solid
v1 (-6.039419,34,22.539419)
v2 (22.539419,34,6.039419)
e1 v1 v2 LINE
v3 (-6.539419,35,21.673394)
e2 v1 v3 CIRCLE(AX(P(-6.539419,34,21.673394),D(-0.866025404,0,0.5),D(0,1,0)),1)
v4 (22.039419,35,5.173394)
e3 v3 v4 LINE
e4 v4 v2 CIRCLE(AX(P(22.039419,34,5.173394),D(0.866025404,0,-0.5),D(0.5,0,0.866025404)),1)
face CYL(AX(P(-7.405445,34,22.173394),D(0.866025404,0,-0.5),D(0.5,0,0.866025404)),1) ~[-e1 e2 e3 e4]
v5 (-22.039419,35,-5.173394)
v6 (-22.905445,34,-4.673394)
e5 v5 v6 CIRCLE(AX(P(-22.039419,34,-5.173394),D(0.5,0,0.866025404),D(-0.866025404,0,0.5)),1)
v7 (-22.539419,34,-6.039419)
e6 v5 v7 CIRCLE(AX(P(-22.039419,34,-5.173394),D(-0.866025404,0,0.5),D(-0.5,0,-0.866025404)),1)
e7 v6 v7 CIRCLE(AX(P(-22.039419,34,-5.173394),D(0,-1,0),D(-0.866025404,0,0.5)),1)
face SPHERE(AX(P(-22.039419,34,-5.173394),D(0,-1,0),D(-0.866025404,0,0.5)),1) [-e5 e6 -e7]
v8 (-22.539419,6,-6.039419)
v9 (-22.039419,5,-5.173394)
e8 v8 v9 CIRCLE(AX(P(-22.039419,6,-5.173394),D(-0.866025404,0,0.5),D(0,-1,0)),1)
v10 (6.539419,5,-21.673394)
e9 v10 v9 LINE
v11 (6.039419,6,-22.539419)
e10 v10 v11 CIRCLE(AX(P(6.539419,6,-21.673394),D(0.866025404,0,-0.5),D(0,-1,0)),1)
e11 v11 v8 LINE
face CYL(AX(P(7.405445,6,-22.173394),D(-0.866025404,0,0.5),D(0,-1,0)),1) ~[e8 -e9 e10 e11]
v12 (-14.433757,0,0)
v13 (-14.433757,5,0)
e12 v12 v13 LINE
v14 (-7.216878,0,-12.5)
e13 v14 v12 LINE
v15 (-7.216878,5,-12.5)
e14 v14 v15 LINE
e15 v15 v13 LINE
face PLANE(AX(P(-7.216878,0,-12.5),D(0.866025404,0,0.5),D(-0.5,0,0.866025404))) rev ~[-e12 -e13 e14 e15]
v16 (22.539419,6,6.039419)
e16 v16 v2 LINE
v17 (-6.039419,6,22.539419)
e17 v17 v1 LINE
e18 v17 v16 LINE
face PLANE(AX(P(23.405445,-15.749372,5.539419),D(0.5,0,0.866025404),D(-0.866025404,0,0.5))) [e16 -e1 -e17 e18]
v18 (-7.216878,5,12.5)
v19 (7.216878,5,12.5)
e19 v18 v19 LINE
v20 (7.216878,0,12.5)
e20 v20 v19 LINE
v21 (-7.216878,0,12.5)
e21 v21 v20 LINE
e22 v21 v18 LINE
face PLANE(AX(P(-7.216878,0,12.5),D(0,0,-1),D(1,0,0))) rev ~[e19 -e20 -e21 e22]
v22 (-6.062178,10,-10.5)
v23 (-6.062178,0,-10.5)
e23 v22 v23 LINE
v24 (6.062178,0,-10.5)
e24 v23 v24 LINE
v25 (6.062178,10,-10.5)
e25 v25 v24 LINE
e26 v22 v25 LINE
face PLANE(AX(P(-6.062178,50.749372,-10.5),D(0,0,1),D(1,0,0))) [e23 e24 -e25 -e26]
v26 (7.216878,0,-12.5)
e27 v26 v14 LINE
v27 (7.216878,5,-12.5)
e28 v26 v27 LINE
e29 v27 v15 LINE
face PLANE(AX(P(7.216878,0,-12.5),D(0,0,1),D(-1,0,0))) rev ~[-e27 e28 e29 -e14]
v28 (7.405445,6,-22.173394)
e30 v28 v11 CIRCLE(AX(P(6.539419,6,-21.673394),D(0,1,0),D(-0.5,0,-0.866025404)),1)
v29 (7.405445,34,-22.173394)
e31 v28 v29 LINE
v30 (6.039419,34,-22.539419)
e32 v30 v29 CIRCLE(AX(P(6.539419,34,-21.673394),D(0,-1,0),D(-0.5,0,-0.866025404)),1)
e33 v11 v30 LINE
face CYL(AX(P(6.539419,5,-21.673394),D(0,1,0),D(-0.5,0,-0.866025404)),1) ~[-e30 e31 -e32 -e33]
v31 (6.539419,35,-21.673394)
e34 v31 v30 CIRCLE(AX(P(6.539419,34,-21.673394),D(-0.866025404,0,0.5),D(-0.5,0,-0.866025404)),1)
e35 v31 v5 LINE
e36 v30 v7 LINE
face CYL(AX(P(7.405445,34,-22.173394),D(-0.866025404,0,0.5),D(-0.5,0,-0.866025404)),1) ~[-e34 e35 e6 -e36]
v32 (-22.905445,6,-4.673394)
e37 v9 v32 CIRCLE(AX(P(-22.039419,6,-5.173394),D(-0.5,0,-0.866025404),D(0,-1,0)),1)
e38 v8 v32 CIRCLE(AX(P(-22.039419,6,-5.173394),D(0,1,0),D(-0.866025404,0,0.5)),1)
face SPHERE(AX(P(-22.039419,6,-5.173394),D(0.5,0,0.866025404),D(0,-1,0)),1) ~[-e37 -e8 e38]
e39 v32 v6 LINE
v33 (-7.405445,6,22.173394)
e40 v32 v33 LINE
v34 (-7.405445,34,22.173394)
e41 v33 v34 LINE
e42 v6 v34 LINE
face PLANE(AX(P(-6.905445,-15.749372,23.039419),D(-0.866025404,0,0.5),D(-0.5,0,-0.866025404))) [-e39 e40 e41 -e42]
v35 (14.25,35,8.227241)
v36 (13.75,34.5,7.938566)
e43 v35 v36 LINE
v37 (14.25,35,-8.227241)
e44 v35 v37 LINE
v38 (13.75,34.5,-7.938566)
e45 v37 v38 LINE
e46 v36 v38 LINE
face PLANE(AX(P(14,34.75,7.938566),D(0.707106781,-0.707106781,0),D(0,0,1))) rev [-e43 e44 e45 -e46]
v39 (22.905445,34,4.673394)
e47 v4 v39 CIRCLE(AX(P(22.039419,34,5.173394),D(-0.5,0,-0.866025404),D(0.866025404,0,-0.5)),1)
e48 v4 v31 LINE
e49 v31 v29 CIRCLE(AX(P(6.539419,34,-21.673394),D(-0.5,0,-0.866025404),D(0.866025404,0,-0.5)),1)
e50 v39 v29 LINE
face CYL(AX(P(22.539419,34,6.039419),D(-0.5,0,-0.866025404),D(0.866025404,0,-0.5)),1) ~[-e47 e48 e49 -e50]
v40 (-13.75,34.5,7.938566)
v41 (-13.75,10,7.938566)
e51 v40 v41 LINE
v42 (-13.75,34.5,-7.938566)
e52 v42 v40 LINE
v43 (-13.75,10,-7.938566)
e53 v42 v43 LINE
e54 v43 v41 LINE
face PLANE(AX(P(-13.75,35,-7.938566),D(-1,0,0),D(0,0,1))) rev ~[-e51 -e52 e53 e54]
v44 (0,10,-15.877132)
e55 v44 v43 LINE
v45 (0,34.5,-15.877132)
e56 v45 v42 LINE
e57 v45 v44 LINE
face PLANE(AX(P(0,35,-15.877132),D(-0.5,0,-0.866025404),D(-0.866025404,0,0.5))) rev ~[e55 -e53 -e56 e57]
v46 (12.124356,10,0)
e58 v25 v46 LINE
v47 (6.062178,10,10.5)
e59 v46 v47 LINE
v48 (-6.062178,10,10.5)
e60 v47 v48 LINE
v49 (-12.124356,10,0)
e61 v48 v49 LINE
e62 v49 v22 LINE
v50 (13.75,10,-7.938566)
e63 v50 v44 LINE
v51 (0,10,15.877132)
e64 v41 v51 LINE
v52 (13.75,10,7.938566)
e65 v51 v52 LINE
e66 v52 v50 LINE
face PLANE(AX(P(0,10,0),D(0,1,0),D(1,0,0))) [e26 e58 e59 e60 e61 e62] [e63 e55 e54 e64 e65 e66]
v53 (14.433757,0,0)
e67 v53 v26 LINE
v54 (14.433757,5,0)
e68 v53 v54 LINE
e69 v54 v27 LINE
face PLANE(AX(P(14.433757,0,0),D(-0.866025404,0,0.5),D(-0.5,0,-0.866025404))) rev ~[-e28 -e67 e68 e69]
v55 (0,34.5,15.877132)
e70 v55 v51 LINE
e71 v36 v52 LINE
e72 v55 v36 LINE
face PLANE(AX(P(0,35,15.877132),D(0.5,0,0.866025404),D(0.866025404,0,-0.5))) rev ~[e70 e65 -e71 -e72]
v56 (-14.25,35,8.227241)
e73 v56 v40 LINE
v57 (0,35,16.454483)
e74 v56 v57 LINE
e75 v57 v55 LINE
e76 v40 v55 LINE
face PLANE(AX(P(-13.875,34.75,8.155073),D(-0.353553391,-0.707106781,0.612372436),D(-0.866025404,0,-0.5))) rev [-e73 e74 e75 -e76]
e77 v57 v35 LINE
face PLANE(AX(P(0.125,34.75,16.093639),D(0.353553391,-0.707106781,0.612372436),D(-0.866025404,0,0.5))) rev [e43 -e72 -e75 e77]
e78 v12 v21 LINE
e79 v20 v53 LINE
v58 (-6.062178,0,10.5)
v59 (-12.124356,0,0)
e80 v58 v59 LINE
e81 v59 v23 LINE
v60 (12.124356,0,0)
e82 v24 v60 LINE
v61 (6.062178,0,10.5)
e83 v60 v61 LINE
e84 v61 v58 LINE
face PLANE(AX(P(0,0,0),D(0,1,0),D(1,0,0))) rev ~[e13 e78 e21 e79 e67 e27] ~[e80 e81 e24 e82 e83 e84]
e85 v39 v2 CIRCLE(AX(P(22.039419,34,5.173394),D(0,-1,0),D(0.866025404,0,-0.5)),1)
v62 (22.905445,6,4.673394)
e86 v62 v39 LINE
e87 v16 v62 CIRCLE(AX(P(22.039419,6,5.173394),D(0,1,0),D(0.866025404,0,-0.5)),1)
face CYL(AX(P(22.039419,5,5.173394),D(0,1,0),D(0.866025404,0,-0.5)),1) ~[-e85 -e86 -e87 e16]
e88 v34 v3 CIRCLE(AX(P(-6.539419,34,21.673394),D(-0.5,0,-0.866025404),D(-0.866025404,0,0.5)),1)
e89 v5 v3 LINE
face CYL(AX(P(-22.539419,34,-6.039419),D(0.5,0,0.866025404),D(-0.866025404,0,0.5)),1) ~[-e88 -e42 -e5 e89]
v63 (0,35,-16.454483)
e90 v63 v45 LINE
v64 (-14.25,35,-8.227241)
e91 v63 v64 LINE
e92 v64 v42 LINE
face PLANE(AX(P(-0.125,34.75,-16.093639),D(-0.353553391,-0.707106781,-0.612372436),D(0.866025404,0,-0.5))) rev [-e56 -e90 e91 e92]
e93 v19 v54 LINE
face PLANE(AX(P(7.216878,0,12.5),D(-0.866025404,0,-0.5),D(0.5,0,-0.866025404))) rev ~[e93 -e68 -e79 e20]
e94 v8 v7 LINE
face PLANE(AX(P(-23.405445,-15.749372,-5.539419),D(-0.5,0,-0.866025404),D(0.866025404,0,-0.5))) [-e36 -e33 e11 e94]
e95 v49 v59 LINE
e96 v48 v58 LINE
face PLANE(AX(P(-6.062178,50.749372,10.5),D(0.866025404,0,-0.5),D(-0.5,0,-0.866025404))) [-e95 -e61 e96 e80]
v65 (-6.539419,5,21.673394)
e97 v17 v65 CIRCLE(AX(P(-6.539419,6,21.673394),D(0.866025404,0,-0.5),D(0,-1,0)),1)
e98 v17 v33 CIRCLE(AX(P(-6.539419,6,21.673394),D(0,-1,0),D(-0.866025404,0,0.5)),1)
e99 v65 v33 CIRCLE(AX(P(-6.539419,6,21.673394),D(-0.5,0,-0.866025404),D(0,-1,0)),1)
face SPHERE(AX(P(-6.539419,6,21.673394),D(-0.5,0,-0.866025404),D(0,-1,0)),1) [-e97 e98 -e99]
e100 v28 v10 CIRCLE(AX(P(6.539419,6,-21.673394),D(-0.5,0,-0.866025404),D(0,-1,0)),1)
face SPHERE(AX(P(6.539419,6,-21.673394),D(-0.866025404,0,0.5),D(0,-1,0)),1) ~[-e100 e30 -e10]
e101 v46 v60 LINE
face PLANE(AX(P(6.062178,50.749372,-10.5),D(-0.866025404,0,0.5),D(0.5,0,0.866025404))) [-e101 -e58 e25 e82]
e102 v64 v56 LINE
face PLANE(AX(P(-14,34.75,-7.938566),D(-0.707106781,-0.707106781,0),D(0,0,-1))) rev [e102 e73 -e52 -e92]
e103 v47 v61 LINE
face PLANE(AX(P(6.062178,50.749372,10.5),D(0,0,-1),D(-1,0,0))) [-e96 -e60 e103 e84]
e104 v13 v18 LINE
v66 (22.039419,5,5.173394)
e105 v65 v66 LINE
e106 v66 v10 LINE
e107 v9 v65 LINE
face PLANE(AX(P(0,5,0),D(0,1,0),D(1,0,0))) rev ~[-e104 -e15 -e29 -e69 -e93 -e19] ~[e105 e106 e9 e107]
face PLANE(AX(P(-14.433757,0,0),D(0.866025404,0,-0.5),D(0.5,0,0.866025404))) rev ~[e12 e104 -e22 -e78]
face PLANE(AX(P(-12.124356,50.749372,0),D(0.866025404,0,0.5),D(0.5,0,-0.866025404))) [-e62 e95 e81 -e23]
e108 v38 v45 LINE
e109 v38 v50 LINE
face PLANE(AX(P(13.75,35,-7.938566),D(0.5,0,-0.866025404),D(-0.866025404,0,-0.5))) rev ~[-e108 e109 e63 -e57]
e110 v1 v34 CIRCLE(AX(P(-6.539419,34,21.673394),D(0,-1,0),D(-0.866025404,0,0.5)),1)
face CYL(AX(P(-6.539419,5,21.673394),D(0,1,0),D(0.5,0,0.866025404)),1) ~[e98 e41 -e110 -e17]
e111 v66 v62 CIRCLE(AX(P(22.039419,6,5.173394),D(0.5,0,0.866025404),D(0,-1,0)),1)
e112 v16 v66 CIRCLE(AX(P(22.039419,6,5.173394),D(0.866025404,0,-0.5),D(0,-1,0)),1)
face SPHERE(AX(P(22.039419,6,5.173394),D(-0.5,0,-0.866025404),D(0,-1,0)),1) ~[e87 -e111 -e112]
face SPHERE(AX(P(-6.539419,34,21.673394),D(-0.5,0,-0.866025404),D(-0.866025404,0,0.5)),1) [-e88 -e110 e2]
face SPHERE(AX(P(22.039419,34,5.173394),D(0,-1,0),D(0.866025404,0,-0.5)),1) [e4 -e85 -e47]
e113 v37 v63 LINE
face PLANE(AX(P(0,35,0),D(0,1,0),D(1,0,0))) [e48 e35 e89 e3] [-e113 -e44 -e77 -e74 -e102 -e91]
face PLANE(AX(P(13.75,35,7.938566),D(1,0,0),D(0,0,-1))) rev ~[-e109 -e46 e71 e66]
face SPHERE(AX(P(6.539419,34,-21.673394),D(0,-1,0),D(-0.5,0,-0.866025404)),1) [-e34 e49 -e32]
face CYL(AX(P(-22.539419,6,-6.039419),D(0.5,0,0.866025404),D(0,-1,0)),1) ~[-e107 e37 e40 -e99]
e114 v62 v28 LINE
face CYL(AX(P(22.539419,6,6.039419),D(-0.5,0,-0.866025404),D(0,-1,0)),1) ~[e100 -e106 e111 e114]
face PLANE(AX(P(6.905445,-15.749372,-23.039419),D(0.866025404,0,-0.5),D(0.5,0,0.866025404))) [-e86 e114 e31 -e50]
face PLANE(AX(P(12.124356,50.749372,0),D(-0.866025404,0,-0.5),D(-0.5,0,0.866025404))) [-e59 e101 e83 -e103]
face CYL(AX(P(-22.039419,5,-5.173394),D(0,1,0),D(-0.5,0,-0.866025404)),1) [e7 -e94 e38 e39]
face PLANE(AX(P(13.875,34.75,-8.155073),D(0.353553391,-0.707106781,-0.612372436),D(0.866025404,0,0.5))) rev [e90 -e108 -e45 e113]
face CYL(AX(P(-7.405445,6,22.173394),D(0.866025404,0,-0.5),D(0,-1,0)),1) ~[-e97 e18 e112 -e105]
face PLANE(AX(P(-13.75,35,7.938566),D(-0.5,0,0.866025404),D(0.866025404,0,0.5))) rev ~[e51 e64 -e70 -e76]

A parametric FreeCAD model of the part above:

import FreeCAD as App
import Part
import Sketcher

V = App.Vector
Q = App.Units.Quantity


def edges_at(feature, points):
    """Names of the edges that pass closest to the given points."""
    edges = feature.Shape.Edges
    near = lambda p: min(range(len(edges)), key=lambda i: edges[i].distToShape(Part.Vertex(*p))[0])
    return sorted({f"Edge{near(p) + 1}" for p in points})

doc = App.newDocument("Part")
body = doc.addObject("PartDesign::Body", "Body")

# Sketch on XZ plane
sketch1 = body.newObject("Sketcher::SketchObject", "Sketch")
sketch1.AttachmentSupport = (doc.getObject("XZ_Plane"), [""])
sketch1.MapMode = "FlatFace"
sketch1.addGeometry([
    Part.LineSegment(V(14, 0, 0), V(7, -12, 0)),  # 0
    Part.LineSegment(V(7, -12, 0), V(-7, -12, 0)),  # 1
    Part.LineSegment(V(-7, -12, 0), V(-14, 0, 0)),  # 2
    Part.LineSegment(V(-14, 0, 0), V(-7, 12, 0)),  # 3
    Part.LineSegment(V(-7, 12, 0), V(7, 12, 0)),  # 4
    Part.LineSegment(V(7, 12, 0), V(14, 0, 0)),  # 5
], False)
sketch1.addConstraint([
    Sketcher.Constraint("Coincident", 0, 2, 1, 1),
    Sketcher.Constraint("Coincident", 1, 2, 2, 1),
    Sketcher.Constraint("Coincident", 2, 2, 3, 1),
    Sketcher.Constraint("Coincident", 3, 2, 4, 1),
    Sketcher.Constraint("Coincident", 4, 2, 5, 1),
    Sketcher.Constraint("Coincident", 5, 2, 0, 1),
    Sketcher.Constraint("Horizontal", 1),
    Sketcher.Constraint("Horizontal", 4),
    Sketcher.Constraint("Symmetric", 0, 2, 3, 2, -1, 1),
    Sketcher.Constraint("Symmetric", 2, 2, 5, 2, -1, 1),
    Sketcher.Constraint("PointOnObject", 2, 2, -1),
    Sketcher.Constraint("Parallel", 2, 5),
    Sketcher.Constraint("Vertical", 1, 2, 3, 2),
    Sketcher.Constraint("Angle", 0, Q("-120 deg")),
    Sketcher.Constraint("DistanceY", 1, 2, 3, 2, Q("25 mm")),
    Sketcher.Constraint("DistanceX", 1, 2, 1, 1, Q("14.433757 mm")),
])
pad1 = body.newObject("PartDesign::Pad", "Pad")
pad1.Profile = sketch1
pad1.Length = 5
pad1.Reversed = True

# Sketch on XZ plane
sketch2 = body.newObject("Sketcher::SketchObject", "Sketch001")
sketch2.AttachmentSupport = (doc.getObject("XZ_Plane"), [""])
sketch2.MapMode = "FlatFace"
sketch2.AttachmentOffset = App.Placement(V(0, 0, -5), App.Rotation())
sketch2.addGeometry([
    Part.LineSegment(V(-25, -25, 0), V(-25, 25, 0)),
    Part.LineSegment(V(-25, 25, 0), V(25, 25, 0)),
    Part.LineSegment(V(25, 25, 0), V(25, -25, 0)),
    Part.LineSegment(V(25, -25, 0), V(-25, -25, 0)),
], False)
sketch2.addConstraint([
    Sketcher.Constraint("Coincident", 0, 2, 1, 1),
    Sketcher.Constraint("Coincident", 1, 2, 2, 1),
    Sketcher.Constraint("Coincident", 2, 2, 3, 1),
    Sketcher.Constraint("Coincident", 3, 2, 0, 1),
    Sketcher.Constraint("Vertical", 0),
    Sketcher.Constraint("Horizontal", 1),
    Sketcher.Constraint("Vertical", 2),
    Sketcher.Constraint("Horizontal", 3),
    Sketcher.Constraint("Symmetric", 0, 2, 2, 2, -1, 1),
    Sketcher.Constraint("Equal", 3, 0),
    Sketcher.Constraint("DistanceX", 1, 1, 1, 2, Q("50 mm")),
])
pad2 = body.newObject("PartDesign::Pad", "Pad001")
pad2.Profile = sketch2
pad2.Length = 30
pad2.Reversed = True

# Sketch on XZ plane
sketch3 = body.newObject("Sketcher::SketchObject", "Sketch002")
sketch3.AttachmentSupport = (doc.getObject("XZ_Plane"), [""])
sketch3.MapMode = "FlatFace"
sketch3.AttachmentOffset = App.Placement(V(0, 0, -35), App.Rotation())
sketch3.addGeometry([
    Part.LineSegment(V(0, -16, 0), V(-14, -8, 0)),  # 0
    Part.LineSegment(V(-14, -8, 0), V(-14, 8, 0)),  # 1
    Part.LineSegment(V(-14, 8, 0), V(0, 16, 0)),  # 2
    Part.LineSegment(V(0, 16, 0), V(14, 8, 0)),  # 3
    Part.LineSegment(V(14, 8, 0), V(14, -8, 0)),  # 4
    Part.LineSegment(V(14, -8, 0), V(0, -16, 0)),  # 5
], False)
sketch3.addConstraint([
    Sketcher.Constraint("Coincident", 0, 2, 1, 1),
    Sketcher.Constraint("Coincident", 1, 2, 2, 1),
    Sketcher.Constraint("Coincident", 2, 2, 3, 1),
    Sketcher.Constraint("Coincident", 3, 2, 4, 1),
    Sketcher.Constraint("Coincident", 4, 2, 5, 1),
    Sketcher.Constraint("Coincident", 5, 2, 0, 1),
    Sketcher.Constraint("Vertical", 1),
    Sketcher.Constraint("Vertical", 4),
    Sketcher.Constraint("Symmetric", 0, 2, 3, 2, -1, 1),
    Sketcher.Constraint("Symmetric", 2, 2, 5, 2, -1, 1),
    Sketcher.Constraint("PointOnObject", 2, 2, -2),
    Sketcher.Constraint("Parallel", 2, 5),
    Sketcher.Constraint("Horizontal", 1, 2, 3, 2),
    Sketcher.Constraint("Angle", 0, Q("150 deg")),
    Sketcher.Constraint("DistanceX", 1, 2, 3, 2, Q("27.5 mm")),
    Sketcher.Constraint("DistanceY", 0, 2, 2, 2, Q("23.815699 mm")),
])
pocket1 = body.newObject("PartDesign::Pocket", "Pocket")
pocket1.Profile = sketch3
pocket1.Length = 25
pocket1.Reversed = True

# Sketch on XZ plane
sketch4 = body.newObject("Sketcher::SketchObject", "Sketch003")
sketch4.AttachmentSupport = (doc.getObject("XZ_Plane"), [""])
sketch4.MapMode = "FlatFace"
sketch4.addGeometry([
    Part.LineSegment(V(-12, 0, 0), V(-6, -10, 0)),  # 0
    Part.LineSegment(V(-6, -10, 0), V(6, -10, 0)),  # 1
    Part.LineSegment(V(6, -10, 0), V(12, 0, 0)),  # 2
    Part.LineSegment(V(12, 0, 0), V(6, 10, 0)),  # 3
    Part.LineSegment(V(6, 10, 0), V(-6, 10, 0)),  # 4
    Part.LineSegment(V(-6, 10, 0), V(-12, 0, 0)),  # 5
], False)
sketch4.addConstraint([
    Sketcher.Constraint("Coincident", 0, 2, 1, 1),
    Sketcher.Constraint("Coincident", 1, 2, 2, 1),
    Sketcher.Constraint("Coincident", 2, 2, 3, 1),
    Sketcher.Constraint("Coincident", 3, 2, 4, 1),
    Sketcher.Constraint("Coincident", 4, 2, 5, 1),
    Sketcher.Constraint("Coincident", 5, 2, 0, 1),
    Sketcher.Constraint("Horizontal", 1),
    Sketcher.Constraint("Horizontal", 4),
    Sketcher.Constraint("Symmetric", 0, 2, 3, 2, -1, 1),
    Sketcher.Constraint("Symmetric", 2, 2, 5, 2, -1, 1),
    Sketcher.Constraint("PointOnObject", 2, 2, -1),
    Sketcher.Constraint("Parallel", 2, 5),
    Sketcher.Constraint("Vertical", 1, 2, 3, 2),
    Sketcher.Constraint("Angle", 0, Q("-60 deg")),
    Sketcher.Constraint("DistanceY", 1, 2, 3, 2, Q("21 mm")),
    Sketcher.Constraint("DistanceX", 1, 1, 1, 2, Q("12.124356 mm")),
])
pocket2 = body.newObject("PartDesign::Pocket", "Pocket001")
pocket2.Profile = sketch4
pocket2.Type = "ThroughAll"
pocket2.Midplane = True

# Sketch on XZ plane
sketch5 = body.newObject("Sketcher::SketchObject", "Sketch004")
sketch5.AttachmentSupport = (doc.getObject("XZ_Plane"), [""])
sketch5.MapMode = "FlatFace"
sketch5.AttachmentOffset = App.Placement(V(0, 0, -35), App.Rotation())
sketch5.addGeometry([
    Part.LineSegment(V(-25, -25, 0), V(-25, 25, 0)),  # 0
    Part.LineSegment(V(-25, 25, 0), V(25, 25, 0)),  # 1
    Part.LineSegment(V(25, 25, 0), V(25, -25, 0)),  # 2
    Part.LineSegment(V(25, -25, 0), V(-25, -25, 0)),  # 3
    Part.LineSegment(V(-7, 23, 0), V(-23, -6, 0)),  # 4
    Part.LineSegment(V(-23, -6, 0), V(7, -23, 0)),  # 5
    Part.LineSegment(V(7, -23, 0), V(23, 6, 0)),  # 6
    Part.LineSegment(V(23, 6, 0), V(-7, 23, 0)),  # 7
], False)
sketch5.addConstraint([
    Sketcher.Constraint("Coincident", 0, 2, 1, 1),
    Sketcher.Constraint("Coincident", 1, 2, 2, 1),
    Sketcher.Constraint("Coincident", 2, 2, 3, 1),
    Sketcher.Constraint("Coincident", 3, 2, 0, 1),
    Sketcher.Constraint("Coincident", 4, 2, 5, 1),
    Sketcher.Constraint("Coincident", 5, 2, 6, 1),
    Sketcher.Constraint("Coincident", 6, 2, 7, 1),
    Sketcher.Constraint("Coincident", 7, 2, 4, 1),
    Sketcher.Constraint("Vertical", 0),
    Sketcher.Constraint("Horizontal", 1),
    Sketcher.Constraint("Vertical", 2),
    Sketcher.Constraint("Horizontal", 3),
    Sketcher.Constraint("Symmetric", 0, 2, 2, 2, -1, 1),
    Sketcher.Constraint("Symmetric", 4, 2, 6, 2, -1, 1),
    Sketcher.Constraint("Symmetric", 5, 2, 7, 2, -1, 1),
    Sketcher.Constraint("Perpendicular", 4, 5),
    Sketcher.Constraint("Equal", 3, 0),
    Sketcher.Constraint("DistanceX", 1, 1, 1, 2, Q("50 mm")),
    Sketcher.Constraint("Angle", 4, Q("-120 deg")),
    Sketcher.Constraint("Distance", 4, Q("33 mm")),
    Sketcher.Constraint("Distance", 5, Q("35 mm")),
])
pocket3 = body.newObject("PartDesign::Pocket", "Pocket002")
pocket3.Profile = sketch5
pocket3.Type = "ThroughAll"
pocket3.Midplane = True
doc.recompute()

fillet = body.newObject("PartDesign::Fillet", "Fillet")
fillet.Base = (pocket3, edges_at(pocket3, [
    (-15.155, 5, 8.75),
    (-8.25, 5, -14.289),
    (15.155, 5, -8.75),
    (8.25, 5, 14.289),
    (-23.405, 20, -5.539),
    (-15.155, 35, 8.75),
    (6.905, 20, -23.039),
    (-8.25, 35, -14.289),
    (23.405, 20, 5.539),
    (15.155, 35, -8.75),
    (-6.905, 20, 23.039),
    (8.25, 35, 14.289),
]))
fillet.Radius = 1
doc.recompute()

chamfer = body.newObject("PartDesign::Chamfer", "Chamfer")
chamfer.Base = (fillet, edges_at(fillet, [
    (6.875, 35, -11.908),
    (-6.875, 35, -11.908),
    (-13.75, 35, 0),
    (-6.875, 35, 11.908),
    (6.875, 35, 11.908),
    (13.75, 35, 0),
]))
chamfer.Size = 0.5

doc.recompute()
